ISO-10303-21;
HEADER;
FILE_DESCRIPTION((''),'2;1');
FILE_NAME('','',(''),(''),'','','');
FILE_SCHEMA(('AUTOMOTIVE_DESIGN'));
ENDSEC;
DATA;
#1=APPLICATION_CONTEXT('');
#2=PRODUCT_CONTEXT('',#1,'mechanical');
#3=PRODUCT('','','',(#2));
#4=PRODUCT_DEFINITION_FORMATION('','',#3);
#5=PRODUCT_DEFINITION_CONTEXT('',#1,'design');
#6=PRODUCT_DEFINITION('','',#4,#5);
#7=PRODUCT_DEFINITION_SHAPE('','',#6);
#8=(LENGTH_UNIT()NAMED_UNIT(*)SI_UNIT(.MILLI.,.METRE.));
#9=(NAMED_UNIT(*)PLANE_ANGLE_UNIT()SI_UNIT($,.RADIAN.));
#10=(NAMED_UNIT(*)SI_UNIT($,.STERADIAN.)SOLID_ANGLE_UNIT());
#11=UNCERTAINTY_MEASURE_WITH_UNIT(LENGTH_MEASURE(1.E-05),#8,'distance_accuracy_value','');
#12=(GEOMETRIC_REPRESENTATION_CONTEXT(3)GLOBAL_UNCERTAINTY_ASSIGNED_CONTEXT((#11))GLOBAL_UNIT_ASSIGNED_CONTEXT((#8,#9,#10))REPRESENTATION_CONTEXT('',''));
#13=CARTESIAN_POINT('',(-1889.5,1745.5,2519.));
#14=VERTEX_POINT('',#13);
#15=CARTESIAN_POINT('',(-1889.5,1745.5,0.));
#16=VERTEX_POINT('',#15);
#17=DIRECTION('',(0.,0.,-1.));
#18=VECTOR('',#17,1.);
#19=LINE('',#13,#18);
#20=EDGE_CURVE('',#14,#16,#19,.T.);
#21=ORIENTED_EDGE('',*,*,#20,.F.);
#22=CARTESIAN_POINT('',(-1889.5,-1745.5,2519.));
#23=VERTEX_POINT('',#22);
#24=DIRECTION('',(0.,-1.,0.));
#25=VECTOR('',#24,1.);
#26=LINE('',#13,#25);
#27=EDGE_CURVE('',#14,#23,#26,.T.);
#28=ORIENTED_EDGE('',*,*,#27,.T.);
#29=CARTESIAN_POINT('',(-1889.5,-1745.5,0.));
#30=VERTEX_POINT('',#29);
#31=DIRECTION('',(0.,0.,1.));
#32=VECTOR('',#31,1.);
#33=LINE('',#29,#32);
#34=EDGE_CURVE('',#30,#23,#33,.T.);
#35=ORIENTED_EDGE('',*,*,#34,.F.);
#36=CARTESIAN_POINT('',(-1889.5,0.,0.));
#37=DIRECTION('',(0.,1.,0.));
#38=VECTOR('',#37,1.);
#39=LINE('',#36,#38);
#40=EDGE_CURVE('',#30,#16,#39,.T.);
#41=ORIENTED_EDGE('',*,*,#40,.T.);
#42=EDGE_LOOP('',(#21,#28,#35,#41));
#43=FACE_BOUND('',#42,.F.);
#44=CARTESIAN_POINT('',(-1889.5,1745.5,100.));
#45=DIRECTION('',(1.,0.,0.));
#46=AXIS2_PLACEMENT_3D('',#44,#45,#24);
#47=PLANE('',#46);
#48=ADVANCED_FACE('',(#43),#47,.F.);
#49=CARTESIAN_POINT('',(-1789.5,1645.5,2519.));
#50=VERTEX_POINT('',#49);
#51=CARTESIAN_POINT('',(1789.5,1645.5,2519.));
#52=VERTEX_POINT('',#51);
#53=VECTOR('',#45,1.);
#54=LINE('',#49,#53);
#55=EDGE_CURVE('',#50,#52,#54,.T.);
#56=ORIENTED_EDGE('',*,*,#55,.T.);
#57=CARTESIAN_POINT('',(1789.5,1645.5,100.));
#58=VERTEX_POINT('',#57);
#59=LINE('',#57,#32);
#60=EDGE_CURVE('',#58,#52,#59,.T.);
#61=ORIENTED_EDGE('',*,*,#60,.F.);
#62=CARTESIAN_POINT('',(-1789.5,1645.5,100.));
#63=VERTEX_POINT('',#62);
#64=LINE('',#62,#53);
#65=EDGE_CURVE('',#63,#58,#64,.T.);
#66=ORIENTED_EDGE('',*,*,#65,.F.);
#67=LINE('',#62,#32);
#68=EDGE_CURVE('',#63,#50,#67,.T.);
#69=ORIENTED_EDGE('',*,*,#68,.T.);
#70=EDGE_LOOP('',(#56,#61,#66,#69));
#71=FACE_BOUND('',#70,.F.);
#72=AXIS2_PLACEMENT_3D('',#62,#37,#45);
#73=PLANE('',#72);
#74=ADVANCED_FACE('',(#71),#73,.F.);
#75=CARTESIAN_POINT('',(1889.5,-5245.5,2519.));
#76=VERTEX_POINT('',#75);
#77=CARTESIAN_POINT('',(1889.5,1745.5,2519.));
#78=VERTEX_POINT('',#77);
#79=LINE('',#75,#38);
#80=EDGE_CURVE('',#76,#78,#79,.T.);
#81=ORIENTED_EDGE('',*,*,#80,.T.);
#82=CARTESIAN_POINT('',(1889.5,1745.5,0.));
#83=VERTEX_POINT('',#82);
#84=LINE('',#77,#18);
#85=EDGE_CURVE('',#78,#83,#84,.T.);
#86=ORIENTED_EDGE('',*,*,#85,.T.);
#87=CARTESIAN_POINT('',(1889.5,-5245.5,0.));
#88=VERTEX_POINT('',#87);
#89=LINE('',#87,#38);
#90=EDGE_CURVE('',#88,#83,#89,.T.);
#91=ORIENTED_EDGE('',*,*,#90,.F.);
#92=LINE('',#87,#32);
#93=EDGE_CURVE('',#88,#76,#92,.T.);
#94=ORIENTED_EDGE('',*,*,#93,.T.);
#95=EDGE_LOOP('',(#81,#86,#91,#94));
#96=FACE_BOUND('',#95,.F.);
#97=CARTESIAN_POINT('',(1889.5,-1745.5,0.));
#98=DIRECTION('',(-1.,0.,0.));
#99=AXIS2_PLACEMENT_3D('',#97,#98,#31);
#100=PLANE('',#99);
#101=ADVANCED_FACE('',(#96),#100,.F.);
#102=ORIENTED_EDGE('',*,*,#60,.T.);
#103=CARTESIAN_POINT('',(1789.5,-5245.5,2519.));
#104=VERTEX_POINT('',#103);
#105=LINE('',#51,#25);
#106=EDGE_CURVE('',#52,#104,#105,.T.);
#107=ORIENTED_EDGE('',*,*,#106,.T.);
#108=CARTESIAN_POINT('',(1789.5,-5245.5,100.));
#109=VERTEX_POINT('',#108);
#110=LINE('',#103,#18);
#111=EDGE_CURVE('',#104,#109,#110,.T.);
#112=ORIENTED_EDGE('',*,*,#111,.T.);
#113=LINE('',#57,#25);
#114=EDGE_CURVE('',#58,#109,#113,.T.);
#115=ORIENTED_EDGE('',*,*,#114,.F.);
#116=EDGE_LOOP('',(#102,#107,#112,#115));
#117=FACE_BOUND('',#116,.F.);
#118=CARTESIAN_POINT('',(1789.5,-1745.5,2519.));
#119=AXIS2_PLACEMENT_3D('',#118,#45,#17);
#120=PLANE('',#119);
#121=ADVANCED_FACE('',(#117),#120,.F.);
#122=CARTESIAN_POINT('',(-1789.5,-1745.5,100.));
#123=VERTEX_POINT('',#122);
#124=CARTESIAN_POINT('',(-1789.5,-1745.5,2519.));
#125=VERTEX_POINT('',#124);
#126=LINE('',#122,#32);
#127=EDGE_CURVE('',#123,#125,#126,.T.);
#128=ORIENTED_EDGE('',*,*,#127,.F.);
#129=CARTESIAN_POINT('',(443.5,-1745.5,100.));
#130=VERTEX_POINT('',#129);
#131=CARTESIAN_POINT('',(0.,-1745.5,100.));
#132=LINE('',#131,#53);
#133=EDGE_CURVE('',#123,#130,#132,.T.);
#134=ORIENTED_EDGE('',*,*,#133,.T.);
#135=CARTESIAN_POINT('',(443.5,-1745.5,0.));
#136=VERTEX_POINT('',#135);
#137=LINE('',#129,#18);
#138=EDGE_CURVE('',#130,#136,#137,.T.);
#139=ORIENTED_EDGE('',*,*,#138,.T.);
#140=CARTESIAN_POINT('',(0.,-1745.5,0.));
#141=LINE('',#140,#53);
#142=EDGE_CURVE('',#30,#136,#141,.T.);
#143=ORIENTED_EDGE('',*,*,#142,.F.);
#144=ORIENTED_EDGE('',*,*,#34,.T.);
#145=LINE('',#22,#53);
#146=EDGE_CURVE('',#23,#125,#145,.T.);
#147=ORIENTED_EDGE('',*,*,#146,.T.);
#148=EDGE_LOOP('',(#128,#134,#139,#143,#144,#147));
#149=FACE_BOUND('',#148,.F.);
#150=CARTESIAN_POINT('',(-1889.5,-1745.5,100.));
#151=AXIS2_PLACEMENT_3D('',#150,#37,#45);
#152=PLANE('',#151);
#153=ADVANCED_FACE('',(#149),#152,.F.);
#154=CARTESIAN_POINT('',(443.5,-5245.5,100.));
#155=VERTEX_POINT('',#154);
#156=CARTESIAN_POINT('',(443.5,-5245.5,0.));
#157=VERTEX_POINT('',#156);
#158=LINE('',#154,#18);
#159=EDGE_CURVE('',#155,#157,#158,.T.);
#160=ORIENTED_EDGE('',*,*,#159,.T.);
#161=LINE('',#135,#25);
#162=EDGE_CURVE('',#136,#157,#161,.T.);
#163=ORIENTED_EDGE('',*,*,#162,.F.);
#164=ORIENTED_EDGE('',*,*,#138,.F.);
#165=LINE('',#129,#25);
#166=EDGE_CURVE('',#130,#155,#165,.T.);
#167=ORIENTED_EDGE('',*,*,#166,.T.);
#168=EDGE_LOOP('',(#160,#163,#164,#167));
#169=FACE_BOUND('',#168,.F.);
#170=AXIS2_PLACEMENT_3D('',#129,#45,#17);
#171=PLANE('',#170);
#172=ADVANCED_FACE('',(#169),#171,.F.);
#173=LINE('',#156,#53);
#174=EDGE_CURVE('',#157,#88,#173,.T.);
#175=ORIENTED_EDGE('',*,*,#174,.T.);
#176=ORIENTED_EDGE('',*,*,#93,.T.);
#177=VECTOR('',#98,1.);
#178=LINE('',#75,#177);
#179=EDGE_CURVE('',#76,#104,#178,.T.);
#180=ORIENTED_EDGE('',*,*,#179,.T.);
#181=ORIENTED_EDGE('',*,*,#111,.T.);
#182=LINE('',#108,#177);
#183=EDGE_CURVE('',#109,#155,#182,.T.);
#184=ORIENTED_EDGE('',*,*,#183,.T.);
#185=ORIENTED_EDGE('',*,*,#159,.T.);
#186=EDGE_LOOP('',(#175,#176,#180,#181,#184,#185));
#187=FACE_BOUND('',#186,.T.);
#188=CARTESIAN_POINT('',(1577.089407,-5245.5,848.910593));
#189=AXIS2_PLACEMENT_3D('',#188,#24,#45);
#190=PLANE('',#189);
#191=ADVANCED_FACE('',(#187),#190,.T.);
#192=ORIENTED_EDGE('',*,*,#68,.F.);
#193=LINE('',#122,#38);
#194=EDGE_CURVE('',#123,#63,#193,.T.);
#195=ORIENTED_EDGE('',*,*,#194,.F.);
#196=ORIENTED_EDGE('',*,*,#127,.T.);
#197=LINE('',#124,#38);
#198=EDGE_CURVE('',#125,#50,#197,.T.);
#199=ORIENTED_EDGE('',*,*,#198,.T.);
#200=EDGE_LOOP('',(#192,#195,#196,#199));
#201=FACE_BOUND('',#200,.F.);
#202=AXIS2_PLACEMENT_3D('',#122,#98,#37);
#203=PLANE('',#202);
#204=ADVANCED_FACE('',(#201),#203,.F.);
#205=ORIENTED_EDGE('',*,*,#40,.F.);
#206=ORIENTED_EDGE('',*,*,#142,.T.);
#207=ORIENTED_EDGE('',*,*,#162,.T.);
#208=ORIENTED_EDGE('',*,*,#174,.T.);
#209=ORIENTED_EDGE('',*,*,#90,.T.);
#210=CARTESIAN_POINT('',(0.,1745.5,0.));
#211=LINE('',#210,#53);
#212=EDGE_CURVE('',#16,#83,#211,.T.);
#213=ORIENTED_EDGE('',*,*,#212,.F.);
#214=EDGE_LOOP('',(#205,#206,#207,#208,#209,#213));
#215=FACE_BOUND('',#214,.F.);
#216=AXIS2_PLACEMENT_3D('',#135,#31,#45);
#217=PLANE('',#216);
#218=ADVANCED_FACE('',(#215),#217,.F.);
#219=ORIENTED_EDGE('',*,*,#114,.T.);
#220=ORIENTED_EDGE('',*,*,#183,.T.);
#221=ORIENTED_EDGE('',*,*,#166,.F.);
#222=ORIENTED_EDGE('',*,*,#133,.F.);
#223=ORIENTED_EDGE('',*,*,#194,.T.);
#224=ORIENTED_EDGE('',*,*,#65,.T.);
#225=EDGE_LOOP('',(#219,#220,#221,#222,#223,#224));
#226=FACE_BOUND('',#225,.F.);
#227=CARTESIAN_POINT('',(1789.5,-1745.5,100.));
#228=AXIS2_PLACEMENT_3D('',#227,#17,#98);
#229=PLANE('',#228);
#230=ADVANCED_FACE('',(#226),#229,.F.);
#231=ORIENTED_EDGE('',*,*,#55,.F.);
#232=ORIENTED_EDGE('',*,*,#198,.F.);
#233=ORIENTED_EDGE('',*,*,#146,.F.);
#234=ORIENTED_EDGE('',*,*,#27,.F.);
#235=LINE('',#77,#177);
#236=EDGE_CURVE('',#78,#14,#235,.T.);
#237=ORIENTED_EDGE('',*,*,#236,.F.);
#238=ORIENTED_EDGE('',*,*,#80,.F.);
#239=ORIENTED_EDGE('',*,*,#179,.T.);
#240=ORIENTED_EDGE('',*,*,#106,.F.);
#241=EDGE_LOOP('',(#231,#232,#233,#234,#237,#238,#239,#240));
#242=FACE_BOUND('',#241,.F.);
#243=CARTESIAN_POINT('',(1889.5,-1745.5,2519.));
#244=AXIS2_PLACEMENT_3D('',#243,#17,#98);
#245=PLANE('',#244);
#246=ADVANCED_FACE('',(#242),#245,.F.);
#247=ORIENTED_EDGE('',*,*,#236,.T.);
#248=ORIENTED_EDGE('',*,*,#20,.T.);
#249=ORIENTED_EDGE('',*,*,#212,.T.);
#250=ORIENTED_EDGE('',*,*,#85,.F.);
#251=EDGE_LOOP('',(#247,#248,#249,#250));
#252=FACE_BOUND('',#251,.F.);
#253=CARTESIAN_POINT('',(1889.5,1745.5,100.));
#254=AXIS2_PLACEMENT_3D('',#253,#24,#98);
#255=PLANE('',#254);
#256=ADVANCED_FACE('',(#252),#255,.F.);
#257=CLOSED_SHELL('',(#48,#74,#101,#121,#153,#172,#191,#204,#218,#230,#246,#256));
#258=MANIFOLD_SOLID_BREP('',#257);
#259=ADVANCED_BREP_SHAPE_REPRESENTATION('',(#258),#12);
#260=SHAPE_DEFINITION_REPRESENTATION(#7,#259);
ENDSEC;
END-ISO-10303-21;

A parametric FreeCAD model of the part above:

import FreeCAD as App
import Part
import Sketcher


def add_polygon(sketch, points):
    """Adds a closed chain of lines whose ends are joined by coincident constraints."""
    first, n = sketch.GeometryCount, len(points)
    for a, b in zip(points, points[1:] + points[:1]):
        sketch.addGeometry(Part.LineSegment(App.Vector(*a, 0), App.Vector(*b, 0)), False)
    for i in range(n):
        sketch.addConstraint(Sketcher.Constraint("Coincident", first + i, 2, first + (i + 1) % n, 1))

doc = App.newDocument("Part")
body = doc.addObject("PartDesign::Body", "Body")

# Sketch on XY plane
sketch1 = body.newObject("Sketcher::SketchObject", "Sketch")
sketch1.AttachmentSupport = (doc.getObject("XY_Plane"), [""])
sketch1.MapMode = "FlatFace"
add_polygon(sketch1, [(-1890, 1746), (-1890, -1746), (1890, -1746), (1890, 1746)])  # lines 0-3
sketch1.addConstraint([
    Sketcher.Constraint("Vertical", 0),
    Sketcher.Constraint("Horizontal", 1),
    Sketcher.Constraint("Vertical", 2),
    Sketcher.Constraint("Horizontal", 3),
    Sketcher.Constraint("Symmetric", 0, 2, 2, 2, -1, 1),
    Sketcher.Constraint("DistanceX", 1, 1, 1, 2, 3779.0),
    Sketcher.Constraint("DistanceY", 0, 2, 0, 1, 3491.0),
])
pad1 = body.newObject("PartDesign::Pad", "Pad")
pad1.Profile = sketch1
pad1.Length = 100

# Sketch on XY plane
sketch2 = body.newObject("Sketcher::SketchObject", "Sketch001")
sketch2.AttachmentSupport = (doc.getObject("XY_Plane"), [""])
sketch2.MapMode = "FlatFace"
sketch2.AttachmentOffset = App.Placement(App.Vector(0, 0, 100), App.Rotation())
add_polygon(sketch2, [(-1890, 1746), (-1890, -1746), (-1790, -1746), (-1790, 1646), (1790, 1646), (1790, -1746), (1890, -1746), (1890, 1746)])  # lines 0-7
sketch2.addConstraint([
    Sketcher.Constraint("Vertical", 0),
    Sketcher.Constraint("Horizontal", 1),
    Sketcher.Constraint("Vertical", 2),
    Sketcher.Constraint("Horizontal", 3),
    Sketcher.Constraint("Vertical", 4),
    Sketcher.Constraint("Horizontal", 5),
    Sketcher.Constraint("Vertical", 6),
    Sketcher.Constraint("Horizontal", 7),
    Sketcher.Constraint("Symmetric", 0, 2, 6, 2, -1, 1),
    Sketcher.Constraint("Symmetric", 1, 2, 4, 2, -2),
    Sketcher.Constraint("DistanceX", 1, 1, 1, 2, 100.0),
    Sketcher.Constraint("DistanceX", 3, 1, 3, 2, 3579.0),
    Sketcher.Constraint("DistanceY", 0, 2, 0, 1, 3491.0),
    Sketcher.Constraint("DistanceY", 2, 1, 2, 2, 3391.0),
])
pad2 = body.newObject("PartDesign::Pad", "Pad001")
pad2.Profile = sketch2
pad2.Length = 2419

# Sketch on XZ plane
sketch3 = body.newObject("Sketcher::SketchObject", "Sketch002")
sketch3.AttachmentSupport = (doc.getObject("XZ_Plane"), [""])
sketch3.MapMode = "FlatFace"
sketch3.AttachmentOffset = App.Placement(App.Vector(0, 0, 1745.5), App.Rotation())
add_polygon(sketch3, [(1890, 2519), (1790, 2519), (1790, 100), (444, 100), (444, 0), (1890, 0)])  # lines 0-5
sketch3.addConstraint([
    Sketcher.Constraint("Horizontal", 0),
    Sketcher.Constraint("Vertical", 1),
    Sketcher.Constraint("Horizontal", 2),
    Sketcher.Constraint("Vertical", 3),
    Sketcher.Constraint("Horizontal", 4),
    Sketcher.Constraint("Vertical", 5),
    Sketcher.Constraint("PointOnObject", 3, 2, -1),
    Sketcher.Constraint("Equal", 0, 3),
    Sketcher.Constraint("DistanceX", 0, 2, 0, 1, 100.0),
    Sketcher.Constraint("DistanceX", 2, 2, 2, 1, 1346.0),
    Sketcher.Constraint("DistanceY", 1, 2, 1, 1, 2419.0),
    Sketcher.Constraint("DistanceX", -1, 1, 0, 2, 1789.5),
])
pad3 = body.newObject("PartDesign::Pad", "Pad002")
pad3.Profile = sketch3
pad3.Length = 3500

doc.recompute()
